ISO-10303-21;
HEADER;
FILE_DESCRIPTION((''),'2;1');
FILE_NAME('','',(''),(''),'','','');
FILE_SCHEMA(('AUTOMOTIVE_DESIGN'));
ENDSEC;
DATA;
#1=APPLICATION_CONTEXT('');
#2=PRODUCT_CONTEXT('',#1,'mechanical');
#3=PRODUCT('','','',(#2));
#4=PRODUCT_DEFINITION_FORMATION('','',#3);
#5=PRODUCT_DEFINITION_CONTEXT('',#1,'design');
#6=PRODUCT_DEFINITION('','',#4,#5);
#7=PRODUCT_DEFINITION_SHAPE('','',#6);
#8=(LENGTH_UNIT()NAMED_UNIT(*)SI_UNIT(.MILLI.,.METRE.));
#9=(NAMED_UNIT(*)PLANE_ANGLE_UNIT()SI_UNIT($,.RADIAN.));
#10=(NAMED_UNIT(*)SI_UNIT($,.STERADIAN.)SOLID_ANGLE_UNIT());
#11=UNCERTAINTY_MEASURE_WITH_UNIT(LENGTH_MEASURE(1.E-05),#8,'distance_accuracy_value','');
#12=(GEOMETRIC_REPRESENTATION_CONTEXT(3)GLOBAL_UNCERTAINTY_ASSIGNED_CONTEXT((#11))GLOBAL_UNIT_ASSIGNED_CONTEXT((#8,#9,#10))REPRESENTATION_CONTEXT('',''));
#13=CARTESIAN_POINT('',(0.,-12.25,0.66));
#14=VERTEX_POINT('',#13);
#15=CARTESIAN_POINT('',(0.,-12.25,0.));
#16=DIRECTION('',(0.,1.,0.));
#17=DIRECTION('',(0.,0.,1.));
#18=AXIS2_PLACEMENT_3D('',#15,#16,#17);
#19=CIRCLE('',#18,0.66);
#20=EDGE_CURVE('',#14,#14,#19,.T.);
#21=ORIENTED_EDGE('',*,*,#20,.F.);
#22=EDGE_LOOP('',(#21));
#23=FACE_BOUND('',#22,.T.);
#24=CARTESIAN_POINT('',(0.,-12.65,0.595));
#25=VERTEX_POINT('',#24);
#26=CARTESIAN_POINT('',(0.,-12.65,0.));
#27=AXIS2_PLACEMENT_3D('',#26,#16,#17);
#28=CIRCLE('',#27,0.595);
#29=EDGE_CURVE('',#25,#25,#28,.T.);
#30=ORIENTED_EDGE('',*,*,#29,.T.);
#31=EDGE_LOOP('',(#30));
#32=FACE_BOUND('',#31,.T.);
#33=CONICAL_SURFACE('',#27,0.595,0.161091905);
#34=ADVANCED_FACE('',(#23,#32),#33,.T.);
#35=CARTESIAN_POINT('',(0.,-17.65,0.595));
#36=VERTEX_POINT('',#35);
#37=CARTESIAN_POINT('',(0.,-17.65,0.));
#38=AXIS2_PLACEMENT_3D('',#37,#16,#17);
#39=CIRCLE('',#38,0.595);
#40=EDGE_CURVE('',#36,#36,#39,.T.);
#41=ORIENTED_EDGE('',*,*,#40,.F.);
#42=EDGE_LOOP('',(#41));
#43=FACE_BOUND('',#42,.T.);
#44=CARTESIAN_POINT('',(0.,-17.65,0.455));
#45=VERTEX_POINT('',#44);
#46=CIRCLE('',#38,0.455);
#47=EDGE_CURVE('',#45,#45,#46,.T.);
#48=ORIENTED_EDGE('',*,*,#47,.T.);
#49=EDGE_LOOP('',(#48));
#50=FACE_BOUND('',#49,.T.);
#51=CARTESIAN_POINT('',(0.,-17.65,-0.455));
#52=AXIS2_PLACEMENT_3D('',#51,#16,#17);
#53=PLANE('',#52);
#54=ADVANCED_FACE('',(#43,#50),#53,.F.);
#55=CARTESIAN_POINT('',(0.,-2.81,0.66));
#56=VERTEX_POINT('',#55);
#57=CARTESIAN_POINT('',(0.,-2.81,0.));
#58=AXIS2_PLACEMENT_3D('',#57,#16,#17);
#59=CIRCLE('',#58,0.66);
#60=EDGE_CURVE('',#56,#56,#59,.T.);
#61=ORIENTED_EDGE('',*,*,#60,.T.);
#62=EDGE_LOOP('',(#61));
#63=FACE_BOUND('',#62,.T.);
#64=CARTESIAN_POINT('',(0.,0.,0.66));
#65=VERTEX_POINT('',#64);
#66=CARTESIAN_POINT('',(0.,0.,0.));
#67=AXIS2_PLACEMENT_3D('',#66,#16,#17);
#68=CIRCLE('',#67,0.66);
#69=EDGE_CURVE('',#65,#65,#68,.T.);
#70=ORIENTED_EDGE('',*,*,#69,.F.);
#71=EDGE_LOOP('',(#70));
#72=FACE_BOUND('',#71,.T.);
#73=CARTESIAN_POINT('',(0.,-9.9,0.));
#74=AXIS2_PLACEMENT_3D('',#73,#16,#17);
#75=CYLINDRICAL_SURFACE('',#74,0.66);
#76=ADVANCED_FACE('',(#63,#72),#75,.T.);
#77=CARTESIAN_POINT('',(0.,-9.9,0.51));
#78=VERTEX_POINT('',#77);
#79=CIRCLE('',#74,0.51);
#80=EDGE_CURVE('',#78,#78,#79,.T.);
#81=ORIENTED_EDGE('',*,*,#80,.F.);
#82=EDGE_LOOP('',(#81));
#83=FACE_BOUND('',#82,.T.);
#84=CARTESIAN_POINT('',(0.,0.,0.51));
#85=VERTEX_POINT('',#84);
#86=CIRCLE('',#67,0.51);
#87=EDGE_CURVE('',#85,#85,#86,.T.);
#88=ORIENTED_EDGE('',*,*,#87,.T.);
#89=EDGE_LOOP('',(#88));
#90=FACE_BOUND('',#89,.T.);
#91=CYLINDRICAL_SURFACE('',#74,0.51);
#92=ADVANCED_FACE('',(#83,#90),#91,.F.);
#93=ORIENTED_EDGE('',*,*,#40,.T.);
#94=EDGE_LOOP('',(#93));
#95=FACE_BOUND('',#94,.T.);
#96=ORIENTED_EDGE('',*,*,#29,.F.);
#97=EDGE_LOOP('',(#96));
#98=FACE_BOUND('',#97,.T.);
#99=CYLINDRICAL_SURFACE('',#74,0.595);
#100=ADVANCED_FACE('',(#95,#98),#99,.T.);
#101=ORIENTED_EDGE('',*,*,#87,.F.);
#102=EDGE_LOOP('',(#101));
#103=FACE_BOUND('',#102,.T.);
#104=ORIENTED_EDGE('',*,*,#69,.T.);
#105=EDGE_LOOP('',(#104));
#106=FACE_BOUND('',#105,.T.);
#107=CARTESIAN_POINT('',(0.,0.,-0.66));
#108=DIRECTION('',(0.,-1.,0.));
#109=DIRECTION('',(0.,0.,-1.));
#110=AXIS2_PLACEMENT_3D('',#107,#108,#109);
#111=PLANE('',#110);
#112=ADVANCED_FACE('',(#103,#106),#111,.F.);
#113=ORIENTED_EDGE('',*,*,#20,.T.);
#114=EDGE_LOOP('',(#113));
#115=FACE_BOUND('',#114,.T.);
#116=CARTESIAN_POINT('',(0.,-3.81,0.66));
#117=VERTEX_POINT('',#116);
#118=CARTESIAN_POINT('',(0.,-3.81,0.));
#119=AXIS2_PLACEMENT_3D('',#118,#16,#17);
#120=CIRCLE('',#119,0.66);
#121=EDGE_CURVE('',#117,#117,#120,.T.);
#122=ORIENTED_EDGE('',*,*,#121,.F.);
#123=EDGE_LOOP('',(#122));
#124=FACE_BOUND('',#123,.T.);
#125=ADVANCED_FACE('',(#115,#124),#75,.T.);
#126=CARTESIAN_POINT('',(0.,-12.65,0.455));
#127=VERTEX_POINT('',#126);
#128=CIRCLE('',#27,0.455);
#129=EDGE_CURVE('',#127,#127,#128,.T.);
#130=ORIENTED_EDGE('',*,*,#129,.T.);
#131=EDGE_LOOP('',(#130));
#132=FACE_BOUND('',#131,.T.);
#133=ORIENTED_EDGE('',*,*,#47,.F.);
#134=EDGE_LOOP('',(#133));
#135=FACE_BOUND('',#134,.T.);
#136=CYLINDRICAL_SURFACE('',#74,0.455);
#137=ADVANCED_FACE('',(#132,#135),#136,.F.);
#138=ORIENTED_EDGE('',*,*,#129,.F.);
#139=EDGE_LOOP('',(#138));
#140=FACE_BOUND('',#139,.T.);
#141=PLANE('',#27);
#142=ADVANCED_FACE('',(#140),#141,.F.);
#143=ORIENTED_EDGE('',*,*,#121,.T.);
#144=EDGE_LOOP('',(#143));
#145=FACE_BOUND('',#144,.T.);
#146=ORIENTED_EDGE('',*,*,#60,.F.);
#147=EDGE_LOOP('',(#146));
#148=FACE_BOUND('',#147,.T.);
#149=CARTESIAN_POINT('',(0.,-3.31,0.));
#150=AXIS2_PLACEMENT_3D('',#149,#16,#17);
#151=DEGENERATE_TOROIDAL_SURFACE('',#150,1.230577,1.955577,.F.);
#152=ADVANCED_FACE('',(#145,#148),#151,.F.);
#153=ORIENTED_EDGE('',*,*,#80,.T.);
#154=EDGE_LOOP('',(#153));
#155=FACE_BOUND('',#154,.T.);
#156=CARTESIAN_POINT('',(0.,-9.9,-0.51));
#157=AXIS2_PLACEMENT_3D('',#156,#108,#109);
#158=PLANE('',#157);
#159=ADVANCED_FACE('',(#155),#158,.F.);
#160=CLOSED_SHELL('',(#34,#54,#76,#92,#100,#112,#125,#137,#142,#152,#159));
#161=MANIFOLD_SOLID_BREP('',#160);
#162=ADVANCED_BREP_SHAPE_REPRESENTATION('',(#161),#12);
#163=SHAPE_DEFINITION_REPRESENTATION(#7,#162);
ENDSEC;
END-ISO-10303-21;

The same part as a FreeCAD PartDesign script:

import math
import FreeCAD as App
import Part
import Sketcher
from FreeCAD import Vector
Q = App.Units.Quantity

doc = App.newDocument("Part")
body = doc.addObject("PartDesign::Body", "Body")

sketch1 = doc.addObject("Sketcher::SketchObject", "Sketch")
body.addObject(sketch1)
sketch1.AttachmentSupport = (doc.YZ_Plane, [""])
sketch1.MapMode = "FlatFace"
sketch1.addGeometry(Part.LineSegment(Vector(0, -0.51, 0), Vector(-9.9, -0.51, 0)), False)
sketch1.addGeometry(Part.LineSegment(Vector(-9.9, -0.51, 0), Vector(-9.9, 0, 0)), False)
sketch1.addGeometry(Part.LineSegment(Vector(-9.9, 0, 0), Vector(-12.65, 0, 0)), False)
sketch1.addGeometry(Part.LineSegment(Vector(-12.65, 0, 0), Vector(-12.65, -0.46, 0)), False)
sketch1.addGeometry(Part.LineSegment(Vector(-12.65, -0.46, 0), Vector(-17.65, -0.46, 0)), False)
sketch1.addGeometry(Part.LineSegment(Vector(-17.65, -0.46, 0), Vector(-17.65, -0.59, 0)), False)
sketch1.addGeometry(Part.LineSegment(Vector(-17.65, -0.59, 0), Vector(-12.65, -0.59, 0)), False)
sketch1.addGeometry(Part.LineSegment(Vector(-12.65, -0.59, 0), Vector(-12.25, -0.66, 0)), False)
sketch1.addGeometry(Part.LineSegment(Vector(-12.25, -0.66, 0), Vector(-3.81, -0.66, 0)), False)
sketch1.addGeometry(Part.ArcOfCircle(Part.Circle(Vector(-3.31, 1.23, 0), Vector(0, 0, 1), 1.96), math.radians(-105), math.radians(-75)), False)
sketch1.addGeometry(Part.LineSegment(Vector(-2.81, -0.66, 0), Vector(0, -0.66, 0)), False)
sketch1.addGeometry(Part.LineSegment(Vector(0, -0.66, 0), Vector(0, -0.51, 0)), False)
sketch1.addConstraint(Sketcher.Constraint("Coincident", 0, 2, 1, 1))
sketch1.addConstraint(Sketcher.Constraint("Coincident", 1, 2, 2, 1))
sketch1.addConstraint(Sketcher.Constraint("Coincident", 2, 2, 3, 1))
sketch1.addConstraint(Sketcher.Constraint("Coincident", 3, 2, 4, 1))
sketch1.addConstraint(Sketcher.Constraint("Coincident", 4, 2, 5, 1))
sketch1.addConstraint(Sketcher.Constraint("Coincident", 5, 2, 6, 1))
sketch1.addConstraint(Sketcher.Constraint("Coincident", 6, 2, 7, 1))
sketch1.addConstraint(Sketcher.Constraint("Coincident", 7, 2, 8, 1))
sketch1.addConstraint(Sketcher.Constraint("Coincident", 8, 2, 9, 1))
sketch1.addConstraint(Sketcher.Constraint("Coincident", 9, 2, 10, 1))
sketch1.addConstraint(Sketcher.Constraint("Coincident", 10, 2, 11, 1))
sketch1.addConstraint(Sketcher.Constraint("Coincident", 11, 2, 0, 1))
sketch1.addConstraint(Sketcher.Constraint("Horizontal", 0))
sketch1.addConstraint(Sketcher.Constraint("Vertical", 1))
sketch1.addConstraint(Sketcher.Constraint("Horizontal", 2))
sketch1.addConstraint(Sketcher.Constraint("Vertical", 3))
sketch1.addConstraint(Sketcher.Constraint("Horizontal", 4))
sketch1.addConstraint(Sketcher.Constraint("Vertical", 5))
sketch1.addConstraint(Sketcher.Constraint("Horizontal", 6))
sketch1.addConstraint(Sketcher.Constraint("Horizontal", 8))
sketch1.addConstraint(Sketcher.Constraint("Horizontal", 10))
sketch1.addConstraint(Sketcher.Constraint("Vertical", 11))
sketch1.addConstraint(Sketcher.Constraint("PointOnObject", 1, 2, -1))
sketch1.addConstraint(Sketcher.Constraint("PointOnObject", 10, 2, -2))
sketch1.addConstraint(Sketcher.Constraint("Horizontal", 8, 2, 9, 2))
sketch1.addConstraint(Sketcher.Constraint("Vertical", 3, 2, 6, 2))
sketch1.addConstraint(Sketcher.Constraint("DistanceX", 4, 2, 4, 1, Q("5 mm")))
sketch1.addConstraint(Sketcher.Constraint("DistanceX", 0, 2, 0, 1, Q("9.9 mm")))
sketch1.addConstraint(Sketcher.Constraint("DistanceX", 8, 2, 9, 2, Q("1 mm")))
sketch1.addConstraint(Sketcher.Constraint("DistanceX", 2, 2, 2, 1, Q("2.75 mm")))
sketch1.addConstraint(Sketcher.Constraint("DistanceX", 8, 1, 8, 2, Q("8.44 mm")))
sketch1.addConstraint(Sketcher.Constraint("DistanceX", 10, 1, 10, 2, Q("2.81 mm")))
sketch1.addConstraint(Sketcher.Constraint("DistanceY", 1, 1, 1, 2, Q("0.51 mm")))
sketch1.addConstraint(Sketcher.Constraint("DistanceY", 5, 2, 5, 1, Q("0.14 mm")))
sketch1.addConstraint(Sketcher.Constraint("DistanceY", 11, 1, 11, 2, Q("0.15 mm")))
sketch1.addConstraint(Sketcher.Constraint("DistanceY", 3, 2, 3, 1, Q("0.455 mm")))
sketch1.addConstraint(Sketcher.Constraint("Radius", 9, Q("1.955577 mm")))
revolution = doc.addObject("PartDesign::Revolution", "Revolution")
body.addObject(revolution)
revolution.Profile = sketch1
revolution.ReferenceAxis = (sketch1, ["H_Axis"])
revolution.Angle = 360

doc.recompute()
